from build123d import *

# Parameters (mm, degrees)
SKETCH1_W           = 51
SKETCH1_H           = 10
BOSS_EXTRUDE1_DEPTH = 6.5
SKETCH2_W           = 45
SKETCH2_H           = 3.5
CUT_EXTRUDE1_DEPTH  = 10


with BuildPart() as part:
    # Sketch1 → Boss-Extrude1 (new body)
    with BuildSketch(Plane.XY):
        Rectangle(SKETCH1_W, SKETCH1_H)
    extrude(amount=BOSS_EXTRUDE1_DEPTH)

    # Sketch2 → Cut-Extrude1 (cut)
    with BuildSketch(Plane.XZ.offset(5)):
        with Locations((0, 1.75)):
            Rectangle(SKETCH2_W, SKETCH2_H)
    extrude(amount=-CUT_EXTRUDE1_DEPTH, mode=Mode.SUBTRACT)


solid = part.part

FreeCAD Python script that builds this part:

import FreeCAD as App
import Part
import Sketcher

V = App.Vector

doc = App.newDocument("Part")
body = doc.addObject("PartDesign::Body", "Body")

# Sketch on XY plane
sketch1 = body.newObject("Sketcher::SketchObject", "Sketch")
sketch1.AttachmentSupport = (doc.getObject("XY_Plane"), [""])
sketch1.MapMode = "FlatFace"
sketch1.addGeometry([
    Part.LineSegment(V(-26, 5, 0), V(-26, -5, 0)),
    Part.LineSegment(V(-26, -5, 0), V(26, -5, 0)),
    Part.LineSegment(V(26, -5, 0), V(26, 5, 0)),
    Part.LineSegment(V(26, 5, 0), V(-26, 5, 0)),
], False)
sketch1.addConstraint([
    Sketcher.Constraint("Coincident", 0, 2, 1, 1),
    Sketcher.Constraint("Coincident", 1, 2, 2, 1),
    Sketcher.Constraint("Coincident", 2, 2, 3, 1),
    Sketcher.Constraint("Coincident", 3, 2, 0, 1),
    Sketcher.Constraint("Vertical", 0),
    Sketcher.Constraint("Horizontal", 1),
    Sketcher.Constraint("Vertical", 2),
    Sketcher.Constraint("Horizontal", 3),
    Sketcher.Constraint("Symmetric", 0, 2, 2, 2, -1, 1),
    Sketcher.Constraint("DistanceX", 1, 1, 1, 2, 51.0),
    Sketcher.Constraint("DistanceY", 0, 2, 0, 1, 10.0),
])
pad1 = body.newObject("PartDesign::Pad", "Pad")
pad1.Profile = sketch1
pad1.Length = 6.5

# Sketch on XZ plane
sketch2 = body.newObject("Sketcher::SketchObject", "Sketch001")
sketch2.AttachmentSupport = (doc.getObject("XZ_Plane"), [""])
sketch2.MapMode = "FlatFace"
sketch2.AttachmentOffset = App.Placement(V(0, 0, 5), App.Rotation())
sketch2.addGeometry([
    Part.LineSegment(V(-22.5, 3.5, 0), V(-22.5, 0, 0)),
    Part.LineSegment(V(-22.5, 0, 0), V(22.5, 0, 0)),
    Part.LineSegment(V(22.5, 0, 0), V(22.5, 3.5, 0)),
    Part.LineSegment(V(22.5, 3.5, 0), V(-22.5, 3.5, 0)),
], False)
sketch2.addConstraint([
    Sketcher.Constraint("Coincident", 0, 2, 1, 1),
    Sketcher.Constraint("Coincident", 1, 2, 2, 1),
    Sketcher.Constraint("Coincident", 2, 2, 3, 1),
    Sketcher.Constraint("Coincident", 3, 2, 0, 1),
    Sketcher.Constraint("Vertical", 0),
    Sketcher.Constraint("Horizontal", 1),
    Sketcher.Constraint("Vertical", 2),
    Sketcher.Constraint("Horizontal", 3),
    Sketcher.Constraint("Symmetric", 0, 2, 1, 2, -1, 1),
    Sketcher.Constraint("DistanceX", 1, 1, 1, 2, 45.0),
    Sketcher.Constraint("DistanceY", 0, 2, 0, 1, 3.5),
])
pocket1 = body.newObject("PartDesign::Pocket", "Pocket")
pocket1.Profile = sketch2
pocket1.Length = 10

doc.recompute()
